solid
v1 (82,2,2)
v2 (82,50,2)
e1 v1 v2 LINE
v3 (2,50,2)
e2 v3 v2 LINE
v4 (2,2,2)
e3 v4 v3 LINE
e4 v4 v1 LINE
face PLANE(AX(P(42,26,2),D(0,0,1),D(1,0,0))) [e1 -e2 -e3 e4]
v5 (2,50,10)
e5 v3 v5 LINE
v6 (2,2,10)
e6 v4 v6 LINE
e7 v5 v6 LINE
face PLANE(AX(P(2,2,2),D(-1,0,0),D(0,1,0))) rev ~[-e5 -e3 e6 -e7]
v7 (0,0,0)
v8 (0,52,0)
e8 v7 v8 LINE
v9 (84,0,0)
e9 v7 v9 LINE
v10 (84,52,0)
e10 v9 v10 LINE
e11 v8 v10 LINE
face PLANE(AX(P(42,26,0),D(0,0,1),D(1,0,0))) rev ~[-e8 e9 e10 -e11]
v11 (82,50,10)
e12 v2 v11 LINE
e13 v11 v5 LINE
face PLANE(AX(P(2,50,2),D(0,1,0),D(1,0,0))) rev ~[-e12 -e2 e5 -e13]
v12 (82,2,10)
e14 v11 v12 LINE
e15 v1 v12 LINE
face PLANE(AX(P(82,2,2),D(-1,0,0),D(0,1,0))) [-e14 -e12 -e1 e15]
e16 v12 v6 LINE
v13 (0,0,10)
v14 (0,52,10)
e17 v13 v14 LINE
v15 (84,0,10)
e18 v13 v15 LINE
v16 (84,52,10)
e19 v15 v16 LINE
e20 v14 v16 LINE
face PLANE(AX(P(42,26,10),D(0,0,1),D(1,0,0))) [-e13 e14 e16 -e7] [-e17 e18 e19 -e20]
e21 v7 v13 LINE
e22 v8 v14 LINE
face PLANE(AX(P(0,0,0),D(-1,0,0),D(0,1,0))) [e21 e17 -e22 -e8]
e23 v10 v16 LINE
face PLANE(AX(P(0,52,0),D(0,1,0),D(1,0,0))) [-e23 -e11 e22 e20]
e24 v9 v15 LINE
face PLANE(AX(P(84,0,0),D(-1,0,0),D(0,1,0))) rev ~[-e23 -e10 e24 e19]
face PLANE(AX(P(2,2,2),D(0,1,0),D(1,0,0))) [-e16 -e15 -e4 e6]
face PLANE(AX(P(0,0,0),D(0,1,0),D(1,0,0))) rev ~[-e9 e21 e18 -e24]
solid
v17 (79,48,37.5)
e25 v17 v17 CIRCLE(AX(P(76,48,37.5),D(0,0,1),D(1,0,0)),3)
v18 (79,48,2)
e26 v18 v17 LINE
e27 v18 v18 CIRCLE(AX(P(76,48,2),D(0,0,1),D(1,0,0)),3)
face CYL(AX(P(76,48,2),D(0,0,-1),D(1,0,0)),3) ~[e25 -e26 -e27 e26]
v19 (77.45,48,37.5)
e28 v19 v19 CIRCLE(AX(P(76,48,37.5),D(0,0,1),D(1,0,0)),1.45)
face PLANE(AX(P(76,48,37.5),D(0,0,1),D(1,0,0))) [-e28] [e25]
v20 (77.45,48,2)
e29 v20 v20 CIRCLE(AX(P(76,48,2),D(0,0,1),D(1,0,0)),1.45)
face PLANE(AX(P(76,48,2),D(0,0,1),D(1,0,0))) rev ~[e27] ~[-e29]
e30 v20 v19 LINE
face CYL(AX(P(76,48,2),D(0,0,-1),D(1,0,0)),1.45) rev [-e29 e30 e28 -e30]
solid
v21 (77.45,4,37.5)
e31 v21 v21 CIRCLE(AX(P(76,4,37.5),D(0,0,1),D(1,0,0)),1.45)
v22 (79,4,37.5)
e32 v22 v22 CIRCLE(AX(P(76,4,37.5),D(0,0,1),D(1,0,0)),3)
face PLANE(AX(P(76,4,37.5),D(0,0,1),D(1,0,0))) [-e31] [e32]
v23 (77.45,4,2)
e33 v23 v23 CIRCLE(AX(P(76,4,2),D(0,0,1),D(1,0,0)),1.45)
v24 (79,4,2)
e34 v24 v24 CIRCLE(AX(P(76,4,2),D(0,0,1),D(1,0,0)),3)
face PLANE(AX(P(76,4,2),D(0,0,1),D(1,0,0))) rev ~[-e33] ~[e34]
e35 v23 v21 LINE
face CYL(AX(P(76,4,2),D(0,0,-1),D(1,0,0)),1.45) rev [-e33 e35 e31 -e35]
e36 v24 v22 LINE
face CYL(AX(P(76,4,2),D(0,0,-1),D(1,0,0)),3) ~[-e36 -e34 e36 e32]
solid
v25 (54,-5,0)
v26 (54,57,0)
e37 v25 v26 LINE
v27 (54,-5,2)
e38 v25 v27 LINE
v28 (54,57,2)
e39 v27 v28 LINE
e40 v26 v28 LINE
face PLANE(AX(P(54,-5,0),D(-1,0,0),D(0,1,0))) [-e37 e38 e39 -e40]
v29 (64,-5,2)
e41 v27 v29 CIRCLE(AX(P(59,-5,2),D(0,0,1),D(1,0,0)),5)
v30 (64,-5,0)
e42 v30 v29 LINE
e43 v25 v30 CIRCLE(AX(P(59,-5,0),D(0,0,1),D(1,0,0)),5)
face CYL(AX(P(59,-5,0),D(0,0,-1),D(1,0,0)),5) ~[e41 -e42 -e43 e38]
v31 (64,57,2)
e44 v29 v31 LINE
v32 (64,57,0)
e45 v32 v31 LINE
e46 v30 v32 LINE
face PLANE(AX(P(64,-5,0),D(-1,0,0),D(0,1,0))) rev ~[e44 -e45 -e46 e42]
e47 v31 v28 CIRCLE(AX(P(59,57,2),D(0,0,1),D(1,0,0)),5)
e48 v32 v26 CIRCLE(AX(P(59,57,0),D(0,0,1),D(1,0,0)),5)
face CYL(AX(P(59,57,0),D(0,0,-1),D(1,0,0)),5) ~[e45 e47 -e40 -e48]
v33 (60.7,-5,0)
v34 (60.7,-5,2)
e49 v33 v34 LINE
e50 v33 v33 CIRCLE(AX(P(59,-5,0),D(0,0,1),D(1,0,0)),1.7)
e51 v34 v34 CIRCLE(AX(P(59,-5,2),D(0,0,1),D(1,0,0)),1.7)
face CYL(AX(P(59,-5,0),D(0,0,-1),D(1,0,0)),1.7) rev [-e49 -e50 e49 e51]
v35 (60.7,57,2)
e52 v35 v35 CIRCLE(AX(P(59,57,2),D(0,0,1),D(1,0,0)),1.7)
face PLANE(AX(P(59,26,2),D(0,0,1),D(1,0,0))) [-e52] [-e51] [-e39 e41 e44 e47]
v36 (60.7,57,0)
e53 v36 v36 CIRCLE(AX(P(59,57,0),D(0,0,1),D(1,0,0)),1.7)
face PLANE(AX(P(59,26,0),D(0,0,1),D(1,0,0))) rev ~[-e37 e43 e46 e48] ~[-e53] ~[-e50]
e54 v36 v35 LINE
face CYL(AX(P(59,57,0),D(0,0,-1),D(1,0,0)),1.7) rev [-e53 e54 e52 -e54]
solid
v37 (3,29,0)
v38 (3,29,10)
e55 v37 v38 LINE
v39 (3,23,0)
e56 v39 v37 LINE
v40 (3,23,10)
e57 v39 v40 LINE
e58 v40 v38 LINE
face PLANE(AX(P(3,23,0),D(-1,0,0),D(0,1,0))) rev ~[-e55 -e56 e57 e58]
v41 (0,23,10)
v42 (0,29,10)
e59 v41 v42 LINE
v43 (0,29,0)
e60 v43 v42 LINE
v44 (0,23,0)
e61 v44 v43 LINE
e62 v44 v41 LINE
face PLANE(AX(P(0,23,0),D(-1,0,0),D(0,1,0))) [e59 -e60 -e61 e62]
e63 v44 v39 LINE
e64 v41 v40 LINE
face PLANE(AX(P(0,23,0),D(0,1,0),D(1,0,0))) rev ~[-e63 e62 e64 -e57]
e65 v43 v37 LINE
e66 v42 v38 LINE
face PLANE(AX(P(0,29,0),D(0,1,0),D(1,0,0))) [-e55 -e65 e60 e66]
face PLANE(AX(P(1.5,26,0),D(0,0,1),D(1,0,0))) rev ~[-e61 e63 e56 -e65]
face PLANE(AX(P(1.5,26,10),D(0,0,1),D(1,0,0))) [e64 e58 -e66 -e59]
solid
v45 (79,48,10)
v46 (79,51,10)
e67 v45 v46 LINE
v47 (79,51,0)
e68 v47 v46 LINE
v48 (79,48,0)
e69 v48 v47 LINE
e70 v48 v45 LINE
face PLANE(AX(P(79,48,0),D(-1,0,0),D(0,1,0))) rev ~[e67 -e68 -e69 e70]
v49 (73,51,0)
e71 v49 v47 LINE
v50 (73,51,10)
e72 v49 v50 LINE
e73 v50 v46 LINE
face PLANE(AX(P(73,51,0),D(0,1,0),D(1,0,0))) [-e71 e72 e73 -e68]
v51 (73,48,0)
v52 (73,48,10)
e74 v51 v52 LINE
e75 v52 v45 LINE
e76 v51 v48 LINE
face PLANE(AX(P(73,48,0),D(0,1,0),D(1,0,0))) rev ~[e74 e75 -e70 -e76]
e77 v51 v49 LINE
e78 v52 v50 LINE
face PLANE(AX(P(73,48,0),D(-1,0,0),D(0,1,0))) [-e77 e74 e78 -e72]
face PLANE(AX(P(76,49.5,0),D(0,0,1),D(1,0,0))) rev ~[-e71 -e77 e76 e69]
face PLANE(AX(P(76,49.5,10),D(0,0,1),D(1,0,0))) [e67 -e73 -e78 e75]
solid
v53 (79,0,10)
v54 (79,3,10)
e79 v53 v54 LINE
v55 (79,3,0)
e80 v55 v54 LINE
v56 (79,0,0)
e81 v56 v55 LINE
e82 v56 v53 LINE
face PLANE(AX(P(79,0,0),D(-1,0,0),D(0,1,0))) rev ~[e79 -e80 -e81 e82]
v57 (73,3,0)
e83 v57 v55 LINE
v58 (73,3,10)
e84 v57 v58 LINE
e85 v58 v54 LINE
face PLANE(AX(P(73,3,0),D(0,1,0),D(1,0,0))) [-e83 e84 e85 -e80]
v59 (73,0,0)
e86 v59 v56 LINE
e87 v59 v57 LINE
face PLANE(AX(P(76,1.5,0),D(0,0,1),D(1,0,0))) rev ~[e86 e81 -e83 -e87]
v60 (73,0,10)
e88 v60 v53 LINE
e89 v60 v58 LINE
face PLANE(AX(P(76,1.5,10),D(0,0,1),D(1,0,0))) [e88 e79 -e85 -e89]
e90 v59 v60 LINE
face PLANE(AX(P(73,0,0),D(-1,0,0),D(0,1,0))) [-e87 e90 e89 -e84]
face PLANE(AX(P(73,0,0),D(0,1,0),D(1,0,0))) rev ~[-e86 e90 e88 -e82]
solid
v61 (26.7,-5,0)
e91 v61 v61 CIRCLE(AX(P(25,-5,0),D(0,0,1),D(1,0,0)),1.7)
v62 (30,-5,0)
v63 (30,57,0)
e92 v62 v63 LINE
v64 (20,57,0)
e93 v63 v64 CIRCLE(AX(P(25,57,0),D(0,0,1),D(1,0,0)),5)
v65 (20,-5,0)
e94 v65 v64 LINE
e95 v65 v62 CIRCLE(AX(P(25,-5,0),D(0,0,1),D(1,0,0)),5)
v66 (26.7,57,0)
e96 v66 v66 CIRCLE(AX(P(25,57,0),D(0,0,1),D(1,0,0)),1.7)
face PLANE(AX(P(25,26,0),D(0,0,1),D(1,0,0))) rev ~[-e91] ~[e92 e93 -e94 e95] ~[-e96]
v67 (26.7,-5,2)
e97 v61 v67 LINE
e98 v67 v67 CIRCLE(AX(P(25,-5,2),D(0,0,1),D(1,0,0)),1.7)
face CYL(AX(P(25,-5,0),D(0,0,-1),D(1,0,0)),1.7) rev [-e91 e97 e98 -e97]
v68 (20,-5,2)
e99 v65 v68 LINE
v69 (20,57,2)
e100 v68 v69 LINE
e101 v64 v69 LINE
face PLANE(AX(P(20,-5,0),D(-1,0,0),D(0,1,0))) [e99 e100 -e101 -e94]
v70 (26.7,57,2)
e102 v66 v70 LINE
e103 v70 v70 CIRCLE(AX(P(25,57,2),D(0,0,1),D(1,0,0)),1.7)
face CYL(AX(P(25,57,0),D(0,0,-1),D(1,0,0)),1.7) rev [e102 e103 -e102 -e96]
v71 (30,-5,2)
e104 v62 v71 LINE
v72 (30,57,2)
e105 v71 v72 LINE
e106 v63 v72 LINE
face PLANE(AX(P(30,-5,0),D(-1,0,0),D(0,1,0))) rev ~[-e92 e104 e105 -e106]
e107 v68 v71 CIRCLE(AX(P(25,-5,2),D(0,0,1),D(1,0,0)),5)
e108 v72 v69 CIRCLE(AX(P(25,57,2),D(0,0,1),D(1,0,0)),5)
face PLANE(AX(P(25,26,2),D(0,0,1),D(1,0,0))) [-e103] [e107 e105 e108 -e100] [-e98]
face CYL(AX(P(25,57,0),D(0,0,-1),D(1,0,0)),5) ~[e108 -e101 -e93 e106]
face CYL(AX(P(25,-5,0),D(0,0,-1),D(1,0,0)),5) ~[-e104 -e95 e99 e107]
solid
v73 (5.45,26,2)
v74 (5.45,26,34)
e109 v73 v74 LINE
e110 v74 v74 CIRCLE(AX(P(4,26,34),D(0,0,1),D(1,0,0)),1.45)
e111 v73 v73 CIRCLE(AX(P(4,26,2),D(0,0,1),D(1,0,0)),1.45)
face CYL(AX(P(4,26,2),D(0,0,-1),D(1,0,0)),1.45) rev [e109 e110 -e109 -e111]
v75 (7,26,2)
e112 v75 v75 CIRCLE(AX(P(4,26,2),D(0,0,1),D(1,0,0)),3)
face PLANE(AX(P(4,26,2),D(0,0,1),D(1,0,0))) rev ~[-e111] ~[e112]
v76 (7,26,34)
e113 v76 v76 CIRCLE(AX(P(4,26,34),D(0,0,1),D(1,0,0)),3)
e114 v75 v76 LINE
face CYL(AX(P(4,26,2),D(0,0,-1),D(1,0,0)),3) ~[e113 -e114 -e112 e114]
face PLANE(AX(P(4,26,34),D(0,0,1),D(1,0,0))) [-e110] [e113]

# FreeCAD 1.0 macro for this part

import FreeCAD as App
import Part
import Sketcher
Q = App.Units.Quantity

doc = App.newDocument("Part")
params = doc.addObject("Spreadsheet::Sheet", "Params")
for row, (alias, value) in enumerate([
    ("sketch1_diameter", "2.9 mm"),
    ("pad1_length", "32 mm"),
    ("sketch2_diameter", "6 mm"),
    ("pad2_length", "32 mm"),
    ("sketch3_diameter", "2.9 mm"),
    ("pad3_length", "35.5 mm"),
    ("sketch4_diameter", "6 mm"),
    ("pad4_length", "35.5 mm"),
    ("sketch5_diameter", "2.9 mm"),
    ("pad5_length", "35.5 mm"),
    ("sketch6_diameter", "6 mm"),
    ("pad6_length", "35.5 mm"),
    ("sketch7_width", "80 mm"),
    ("sketch7_height", "48 mm"),
    ("pad7_length", "10 mm"),
    ("sketch8_width", "84 mm"),
    ("sketch8_height", "52 mm"),
    ("pad8_length", "10 mm"),
    ("sketch9_width", "3 mm"),
    ("sketch9_height", "6 mm"),
    ("pad9_length", "10 mm"),
    ("sketch10_width", "6 mm"),
    ("sketch10_height", "3 mm"),
    ("pad10_length", "10 mm"),
    ("sketch11_width", "6 mm"),
    ("sketch11_height", "3 mm"),
    ("pad11_length", "10 mm"),
    ("sketch12_diameter", "3.4 mm"),
    ("pad12_length", "2 mm"),
    ("sketch13_diameter", "3.4 mm"),
    ("pad13_length", "2 mm"),
    ("sketch14_width", "10 mm"),
    ("sketch14_height", "62 mm"),
    ("pad14_length", "2 mm"),
    ("sketch15_diameter", "10 mm"),
    ("pad15_length", "2 mm"),
    ("sketch16_diameter", "10 mm"),
    ("pad16_length", "2 mm"),
    ("sketch17_diameter", "3.4 mm"),
    ("pad17_length", "2 mm"),
    ("sketch18_diameter", "3.4 mm"),
    ("pad18_length", "2 mm"),
    ("sketch19_width", "10 mm"),
    ("sketch19_height", "62 mm"),
    ("pad19_length", "2 mm"),
    ("sketch20_diameter", "10 mm"),
    ("pad20_length", "2 mm"),
    ("sketch21_diameter", "10 mm"),
    ("pad21_length", "2 mm"),
], start=1):
    params.set(f"A{row}", alias)
    params.set(f"B{row}", "=" + value)
    params.setAlias(f"B{row}", alias)

body = doc.addObject("PartDesign::Body", "Body")

# Sketch on XY plane
sketch1 = doc.addObject("Sketcher::SketchObject", "Sketch")
body.addObject(sketch1)
sketch1.AttachmentSupport = (doc.XY_Plane, [""])
sketch1.MapMode = "FlatFace"
sketch1.AttachmentOffset = App.Placement(App.Vector(0, 0, 2), App.Rotation())
sketch1.addGeometry(Part.Circle(App.Vector(4, 26, 0), App.Vector(0, 0, 1), 1.4), False)
sketch1.addConstraint(Sketcher.Constraint("Diameter", 0, Q("2.9 mm")))
sketch1.addConstraint(Sketcher.Constraint("DistanceX", -1, 1, 0, 3, Q("4 mm")))
sketch1.addConstraint(Sketcher.Constraint("DistanceY", -1, 1, 0, 3, Q("26 mm")))
sketch1.setExpression("Constraints[0]", "Params.sketch1_diameter")
pad1 = doc.addObject("PartDesign::Pad", "Pad")
body.addObject(pad1)
pad1.Profile = sketch1
pad1.setExpression("Length", "Params.pad1_length")
body2 = doc.addObject("PartDesign::Body", "Body001")

# Sketch on XY plane
sketch2 = doc.addObject("Sketcher::SketchObject", "Sketch001")
body2.addObject(sketch2)
sketch2.AttachmentSupport = (doc.getObject("XY_Plane001"), [""])
sketch2.MapMode = "FlatFace"
sketch2.AttachmentOffset = App.Placement(App.Vector(0, 0, 2), App.Rotation())
sketch2.addGeometry(Part.Circle(App.Vector(4, 26, 0), App.Vector(0, 0, 1), 3), False)
sketch2.addConstraint(Sketcher.Constraint("Diameter", 0, Q("6 mm")))
sketch2.addConstraint(Sketcher.Constraint("DistanceX", -1, 1, 0, 3, Q("4 mm")))
sketch2.addConstraint(Sketcher.Constraint("DistanceY", -1, 1, 0, 3, Q("26 mm")))
sketch2.setExpression("Constraints[0]", "Params.sketch2_diameter")
pad2 = doc.addObject("PartDesign::Pad", "Pad001")
body2.addObject(pad2)
pad2.Profile = sketch2
pad2.setExpression("Length", "Params.pad2_length")
doc.recompute()

boolean = doc.addObject("PartDesign::Boolean", "Boolean")
body2.addObject(boolean)
boolean.Type = "Cut"
boolean.addObjects([body])
body3 = doc.addObject("PartDesign::Body", "Body002")

# Sketch on XY plane
sketch3 = doc.addObject("Sketcher::SketchObject", "Sketch002")
body3.addObject(sketch3)
sketch3.AttachmentSupport = (doc.getObject("XY_Plane002"), [""])
sketch3.MapMode = "FlatFace"
sketch3.AttachmentOffset = App.Placement(App.Vector(0, 0, 2), App.Rotation())
sketch3.addGeometry(Part.Circle(App.Vector(76, 4, 0), App.Vector(0, 0, 1), 1.4), False)
sketch3.addConstraint(Sketcher.Constraint("Diameter", 0, Q("2.9 mm")))
sketch3.addConstraint(Sketcher.Constraint("DistanceX", -1, 1, 0, 3, Q("76 mm")))
sketch3.addConstraint(Sketcher.Constraint("DistanceY", -1, 1, 0, 3, Q("4 mm")))
sketch3.setExpression("Constraints[0]", "Params.sketch3_diameter")
pad3 = doc.addObject("PartDesign::Pad", "Pad002")
body3.addObject(pad3)
pad3.Profile = sketch3
pad3.setExpression("Length", "Params.pad3_length")
body4 = doc.addObject("PartDesign::Body", "Body003")

# Sketch on XY plane
sketch4 = doc.addObject("Sketcher::SketchObject", "Sketch003")
body4.addObject(sketch4)
sketch4.AttachmentSupport = (doc.getObject("XY_Plane003"), [""])
sketch4.MapMode = "FlatFace"
sketch4.AttachmentOffset = App.Placement(App.Vector(0, 0, 2), App.Rotation())
sketch4.addGeometry(Part.Circle(App.Vector(76, 4, 0), App.Vector(0, 0, 1), 3), False)
sketch4.addConstraint(Sketcher.Constraint("Diameter", 0, Q("6 mm")))
sketch4.addConstraint(Sketcher.Constraint("DistanceX", -1, 1, 0, 3, Q("76 mm")))
sketch4.addConstraint(Sketcher.Constraint("DistanceY", -1, 1, 0, 3, Q("4 mm")))
sketch4.setExpression("Constraints[0]", "Params.sketch4_diameter")
pad4 = doc.addObject("PartDesign::Pad", "Pad003")
body4.addObject(pad4)
pad4.Profile = sketch4
pad4.setExpression("Length", "Params.pad4_length")
doc.recompute()

boolean2 = doc.addObject("PartDesign::Boolean", "Boolean001")
body4.addObject(boolean2)
boolean2.Type = "Cut"
boolean2.addObjects([body3])
body5 = doc.addObject("PartDesign::Body", "Body004")

# Sketch on XY plane
sketch5 = doc.addObject("Sketcher::SketchObject", "Sketch004")
body5.addObject(sketch5)
sketch5.AttachmentSupport = (doc.getObject("XY_Plane004"), [""])
sketch5.MapMode = "FlatFace"
sketch5.AttachmentOffset = App.Placement(App.Vector(0, 0, 2), App.Rotation())
sketch5.addGeometry(Part.Circle(App.Vector(76, 48, 0), App.Vector(0, 0, 1), 1.4), False)
sketch5.addConstraint(Sketcher.Constraint("Diameter", 0, Q("2.9 mm")))
sketch5.addConstraint(Sketcher.Constraint("DistanceX", -1, 1, 0, 3, Q("76 mm")))
sketch5.addConstraint(Sketcher.Constraint("DistanceY", -1, 1, 0, 3, Q("48 mm")))
sketch5.setExpression("Constraints[0]", "Params.sketch5_diameter")
pad5 = doc.addObject("PartDesign::Pad", "Pad004")
body5.addObject(pad5)
pad5.Profile = sketch5
pad5.setExpression("Length", "Params.pad5_length")
body6 = doc.addObject("PartDesign::Body", "Body005")

# Sketch on XY plane
sketch6 = doc.addObject("Sketcher::SketchObject", "Sketch005")
body6.addObject(sketch6)
sketch6.AttachmentSupport = (doc.getObject("XY_Plane005"), [""])
sketch6.MapMode = "FlatFace"
sketch6.AttachmentOffset = App.Placement(App.Vector(0, 0, 2), App.Rotation())
sketch6.addGeometry(Part.Circle(App.Vector(76, 48, 0), App.Vector(0, 0, 1), 3), False)
sketch6.addConstraint(Sketcher.Constraint("Diameter", 0, Q("6 mm")))
sketch6.addConstraint(Sketcher.Constraint("DistanceX", -1, 1, 0, 3, Q("76 mm")))
sketch6.addConstraint(Sketcher.Constraint("DistanceY", -1, 1, 0, 3, Q("48 mm")))
sketch6.setExpression("Constraints[0]", "Params.sketch6_diameter")
pad6 = doc.addObject("PartDesign::Pad", "Pad005")
body6.addObject(pad6)
pad6.Profile = sketch6
pad6.setExpression("Length", "Params.pad6_length")
doc.recompute()

boolean3 = doc.addObject("PartDesign::Boolean", "Boolean002")
body6.addObject(boolean3)
boolean3.Type = "Cut"
boolean3.addObjects([body5])
body7 = doc.addObject("PartDesign::Body", "Body006")

# Sketch on XY plane
sketch7 = doc.addObject("Sketcher::SketchObject", "Sketch006")
body7.addObject(sketch7)
sketch7.AttachmentSupport = (doc.getObject("XY_Plane006"), [""])
sketch7.MapMode = "FlatFace"
sketch7.AttachmentOffset = App.Placement(App.Vector(0, 0, 2), App.Rotation())
sketch7.addGeometry(Part.LineSegment(App.Vector(2, 50, 0), App.Vector(2, 2, 0)), False)
sketch7.addGeometry(Part.LineSegment(App.Vector(2, 2, 0), App.Vector(82, 2, 0)), False)
sketch7.addGeometry(Part.LineSegment(App.Vector(82, 2, 0), App.Vector(82, 50, 0)), False)
sketch7.addGeometry(Part.LineSegment(App.Vector(82, 50, 0), App.Vector(2, 50, 0)), False)
sketch7.addConstraint(Sketcher.Constraint("Coincident", 0, 2, 1, 1))
sketch7.addConstraint(Sketcher.Constraint("Coincident", 1, 2, 2, 1))
sketch7.addConstraint(Sketcher.Constraint("Coincident", 2, 2, 3, 1))
sketch7.addConstraint(Sketcher.Constraint("Coincident", 3, 2, 0, 1))
sketch7.addConstraint(Sketcher.Constraint("Vertical", 0))
sketch7.addConstraint(Sketcher.Constraint("Horizontal", 1))
sketch7.addConstraint(Sketcher.Constraint("Vertical", 2))
sketch7.addConstraint(Sketcher.Constraint("Horizontal", 3))
sketch7.addConstraint(Sketcher.Constraint("DistanceX", 1, 1, 1, 2, Q("80 mm")))
sketch7.addConstraint(Sketcher.Constraint("DistanceY", 0, 2, 0, 1, Q("48 mm")))
sketch7.addConstraint(Sketcher.Constraint("DistanceX", -1, 1, 0, 2, Q("2 mm")))
sketch7.addConstraint(Sketcher.Constraint("DistanceY", -1, 1, 0, 2, Q("2 mm")))
sketch7.setExpression("Constraints[8]", "Params.sketch7_width")
sketch7.setExpression("Constraints[9]", "Params.sketch7_height")
pad7 = doc.addObject("PartDesign::Pad", "Pad006")
body7.addObject(pad7)
pad7.Profile = sketch7
pad7.setExpression("Length", "Params.pad7_length")
body8 = doc.addObject("PartDesign::Body", "Body007")

# Sketch on XY plane
sketch8 = doc.addObject("Sketcher::SketchObject", "Sketch007")
body8.addObject(sketch8)
sketch8.AttachmentSupport = (doc.getObject("XY_Plane007"), [""])
sketch8.MapMode = "FlatFace"
sketch8.addGeometry(Part.LineSegment(App.Vector(0, 52, 0), App.Vector(0, 0, 0)), False)
sketch8.addGeometry(Part.LineSegment(App.Vector(0, 0, 0), App.Vector(84, 0, 0)), False)
sketch8.addGeometry(Part.LineSegment(App.Vector(84, 0, 0), App.Vector(84, 52, 0)), False)
sketch8.addGeometry(Part.LineSegment(App.Vector(84, 52, 0), App.Vector(0, 52, 0)), False)
sketch8.addConstraint(Sketcher.Constraint("Coincident", 0, 2, 1, 1))
sketch8.addConstraint(Sketcher.Constraint("Coincident", 1, 2, 2, 1))
sketch8.addConstraint(Sketcher.Constraint("Coincident", 2, 2, 3, 1))
sketch8.addConstraint(Sketcher.Constraint("Coincident", 3, 2, 0, 1))
sketch8.addConstraint(Sketcher.Constraint("Vertical", 0))
sketch8.addConstraint(Sketcher.Constraint("Horizontal", 1))
sketch8.addConstraint(Sketcher.Constraint("Vertical", 2))
sketch8.addConstraint(Sketcher.Constraint("Horizontal", 3))
sketch8.addConstraint(Sketcher.Constraint("Coincident", 0, 2, -1, 1))
sketch8.addConstraint(Sketcher.Constraint("DistanceX", 1, 1, 1, 2, Q("84 mm")))
sketch8.addConstraint(Sketcher.Constraint("DistanceY", 0, 2, 0, 1, Q("52 mm")))
sketch8.setExpression("Constraints[9]", "Params.sketch8_width")
sketch8.setExpression("Constraints[10]", "Params.sketch8_height")
pad8 = doc.addObject("PartDesign::Pad", "Pad007")
body8.addObject(pad8)
pad8.Profile = sketch8
pad8.setExpression("Length", "Params.pad8_length")
doc.recompute()

boolean4 = doc.addObject("PartDesign::Boolean", "Boolean003")
body8.addObject(boolean4)
boolean4.Type = "Cut"
boolean4.addObjects([body7])
body9 = doc.addObject("PartDesign::Body", "Body008")

# Sketch on XY plane
sketch9 = doc.addObject("Sketcher::SketchObject", "Sketch008")
body9.addObject(sketch9)
sketch9.AttachmentSupport = (doc.getObject("XY_Plane008"), [""])
sketch9.MapMode = "FlatFace"
sketch9.addGeometry(Part.LineSegment(App.Vector(0, 29, 0), App.Vector(0, 23, 0)), False)
sketch9.addGeometry(Part.LineSegment(App.Vector(0, 23, 0), App.Vector(3, 23, 0)), False)
sketch9.addGeometry(Part.LineSegment(App.Vector(3, 23, 0), App.Vector(3, 29, 0)), False)
sketch9.addGeometry(Part.LineSegment(App.Vector(3, 29, 0), App.Vector(0, 29, 0)), False)
sketch9.addConstraint(Sketcher.Constraint("Coincident", 0, 2, 1, 1))
sketch9.addConstraint(Sketcher.Constraint("Coincident", 1, 2, 2, 1))
sketch9.addConstraint(Sketcher.Constraint("Coincident", 2, 2, 3, 1))
sketch9.addConstraint(Sketcher.Constraint("Coincident", 3, 2, 0, 1))
sketch9.addConstraint(Sketcher.Constraint("Vertical", 0))
sketch9.addConstraint(Sketcher.Constraint("Horizontal", 1))
sketch9.addConstraint(Sketcher.Constraint("Vertical", 2))
sketch9.addConstraint(Sketcher.Constraint("Horizontal", 3))
sketch9.addConstraint(Sketcher.Constraint("PointOnObject", 0, 2, -2))
sketch9.addConstraint(Sketcher.Constraint("DistanceX", 1, 1, 1, 2, Q("3 mm")))
sketch9.addConstraint(Sketcher.Constraint("DistanceY", 0, 2, 0, 1, Q("6 mm")))
sketch9.addConstraint(Sketcher.Constraint("DistanceY", -1, 1, 0, 2, Q("23 mm")))
sketch9.setExpression("Constraints[9]", "Params.sketch9_width")
sketch9.setExpression("Constraints[10]", "Params.sketch9_height")
pad9 = doc.addObject("PartDesign::Pad", "Pad008")
body9.addObject(pad9)
pad9.Profile = sketch9
pad9.setExpression("Length", "Params.pad9_length")
body10 = doc.addObject("PartDesign::Body", "Body009")

# Sketch on XY plane
sketch10 = doc.addObject("Sketcher::SketchObject", "Sketch009")
body10.addObject(sketch10)
sketch10.AttachmentSupport = (doc.getObject("XY_Plane009"), [""])
sketch10.MapMode = "FlatFace"
sketch10.addGeometry(Part.LineSegment(App.Vector(73, 3, 0), App.Vector(73, 0, 0)), False)
sketch10.addGeometry(Part.LineSegment(App.Vector(73, 0, 0), App.Vector(79, 0, 0)), False)
sketch10.addGeometry(Part.LineSegment(App.Vector(79, 0, 0), App.Vector(79, 3, 0)), False)
sketch10.addGeometry(Part.LineSegment(App.Vector(79, 3, 0), App.Vector(73, 3, 0)), False)
sketch10.addConstraint(Sketcher.Constraint("Coincident", 0, 2, 1, 1))
sketch10.addConstraint(Sketcher.Constraint("Coincident", 1, 2, 2, 1))
sketch10.addConstraint(Sketcher.Constraint("Coincident", 2, 2, 3, 1))
sketch10.addConstraint(Sketcher.Constraint("Coincident", 3, 2, 0, 1))
sketch10.addConstraint(Sketcher.Constraint("Vertical", 0))
sketch10.addConstraint(Sketcher.Constraint("Horizontal", 1))
sketch10.addConstraint(Sketcher.Constraint("Vertical", 2))
sketch10.addConstraint(Sketcher.Constraint("Horizontal", 3))
sketch10.addConstraint(Sketcher.Constraint("PointOnObject", 0, 2, -1))
sketch10.addConstraint(Sketcher.Constraint("DistanceX", 1, 1, 1, 2, Q("6 mm")))
sketch10.addConstraint(Sketcher.Constraint("DistanceY", 0, 2, 0, 1, Q("3 mm")))
sketch10.addConstraint(Sketcher.Constraint("DistanceX", -1, 1, 0, 2, Q("73 mm")))
sketch10.setExpression("Constraints[9]", "Params.sketch10_width")
sketch10.setExpression("Constraints[10]", "Params.sketch10_height")
pad10 = doc.addObject("PartDesign::Pad", "Pad009")
body10.addObject(pad10)
pad10.Profile = sketch10
pad10.setExpression("Length", "Params.pad10_length")
body11 = doc.addObject("PartDesign::Body", "Body010")

# Sketch on XY plane
sketch11 = doc.addObject("Sketcher::SketchObject", "Sketch010")
body11.addObject(sketch11)
sketch11.AttachmentSupport = (doc.getObject("XY_Plane010"), [""])
sketch11.MapMode = "FlatFace"
sketch11.addGeometry(Part.LineSegment(App.Vector(73, 51, 0), App.Vector(73, 48, 0)), False)
sketch11.addGeometry(Part.LineSegment(App.Vector(73, 48, 0), App.Vector(79, 48, 0)), False)
sketch11.addGeometry(Part.LineSegment(App.Vector(79, 48, 0), App.Vector(79, 51, 0)), False)
sketch11.addGeometry(Part.LineSegment(App.Vector(79, 51, 0), App.Vector(73, 51, 0)), False)
sketch11.addConstraint(Sketcher.Constraint("Coincident", 0, 2, 1, 1))
sketch11.addConstraint(Sketcher.Constraint("Coincident", 1, 2, 2, 1))
sketch11.addConstraint(Sketcher.Constraint("Coincident", 2, 2, 3, 1))
sketch11.addConstraint(Sketcher.Constraint("Coincident", 3, 2, 0, 1))
sketch11.addConstraint(Sketcher.Constraint("Vertical", 0))
sketch11.addConstraint(Sketcher.Constraint("Horizontal", 1))
sketch11.addConstraint(Sketcher.Constraint("Vertical", 2))
sketch11.addConstraint(Sketcher.Constraint("Horizontal", 3))
sketch11.addConstraint(Sketcher.Constraint("DistanceX", 1, 1, 1, 2, Q("6 mm")))
sketch11.addConstraint(Sketcher.Constraint("DistanceY", 0, 2, 0, 1, Q("3 mm")))
sketch11.addConstraint(Sketcher.Constraint("DistanceX", -1, 1, 0, 2, Q("73 mm")))
sketch11.addConstraint(Sketcher.Constraint("DistanceY", -1, 1, 0, 2, Q("48 mm")))
sketch11.setExpression("Constraints[8]", "Params.sketch11_width")
sketch11.setExpression("Constraints[9]", "Params.sketch11_height")
pad11 = doc.addObject("PartDesign::Pad", "Pad010")
body11.addObject(pad11)
pad11.Profile = sketch11
pad11.setExpression("Length", "Params.pad11_length")
body12 = doc.addObject("PartDesign::Body", "Body011")

# Sketch on XY plane
sketch12 = doc.addObject("Sketcher::SketchObject", "Sketch011")
body12.addObject(sketch12)
sketch12.AttachmentSupport = (doc.getObject("XY_Plane011"), [""])
sketch12.MapMode = "FlatFace"
sketch12.addGeometry(Part.Circle(App.Vector(25, 57, 0), App.Vector(0, 0, 1), 1.7), False)
sketch12.addConstraint(Sketcher.Constraint("Diameter", 0, Q("3.4 mm")))
sketch12.addConstraint(Sketcher.Constraint("DistanceX", -1, 1, 0, 3, Q("25 mm")))
sketch12.addConstraint(Sketcher.Constraint("DistanceY", -1, 1, 0, 3, Q("57 mm")))
sketch12.setExpression("Constraints[0]", "Params.sketch12_diameter")
pad12 = doc.addObject("PartDesign::Pad", "Pad011")
body12.addObject(pad12)
pad12.Profile = sketch12
pad12.setExpression("Length", "Params.pad12_length")
body13 = doc.addObject("PartDesign::Body", "Body012")
body13.AllowCompound = True

# Sketch on XY plane
sketch13 = doc.addObject("Sketcher::SketchObject", "Sketch012")
body13.addObject(sketch13)
sketch13.AttachmentSupport = (doc.getObject("XY_Plane012"), [""])
sketch13.MapMode = "FlatFace"
sketch13.addGeometry(Part.Circle(App.Vector(25, -5, 0), App.Vector(0, 0, 1), 1.7), False)
sketch13.addConstraint(Sketcher.Constraint("Diameter", 0, Q("3.4 mm")))
sketch13.addConstraint(Sketcher.Constraint("DistanceX", -1, 1, 0, 3, Q("25 mm")))
sketch13.addConstraint(Sketcher.Constraint("DistanceY", 0, 3, -1, 1, Q("5 mm")))
sketch13.setExpression("Constraints[0]", "Params.sketch13_diameter")
pad13 = doc.addObject("PartDesign::Pad", "Pad012")
body13.addObject(pad13)
pad13.Profile = sketch13
pad13.setExpression("Length", "Params.pad13_length")
doc.recompute()

boolean5 = doc.addObject("PartDesign::Boolean", "Boolean004")
body13.addObject(boolean5)
boolean5.Type = "Fuse"
boolean5.addObjects([body12])
body14 = doc.addObject("PartDesign::Body", "Body013")

# Sketch on XY plane
sketch14 = doc.addObject("Sketcher::SketchObject", "Sketch013")
body14.addObject(sketch14)
sketch14.AttachmentSupport = (doc.getObject("XY_Plane013"), [""])
sketch14.MapMode = "FlatFace"
sketch14.addGeometry(Part.LineSegment(App.Vector(20, 57, 0), App.Vector(20, -5, 0)), False)
sketch14.addGeometry(Part.LineSegment(App.Vector(20, -5, 0), App.Vector(30, -5, 0)), False)
sketch14.addGeometry(Part.LineSegment(App.Vector(30, -5, 0), App.Vector(30, 57, 0)), False)
sketch14.addGeometry(Part.LineSegment(App.Vector(30, 57, 0), App.Vector(20, 57, 0)), False)
sketch14.addConstraint(Sketcher.Constraint("Coincident", 0, 2, 1, 1))
sketch14.addConstraint(Sketcher.Constraint("Coincident", 1, 2, 2, 1))
sketch14.addConstraint(Sketcher.Constraint("Coincident", 2, 2, 3, 1))
sketch14.addConstraint(Sketcher.Constraint("Coincident", 3, 2, 0, 1))
sketch14.addConstraint(Sketcher.Constraint("Vertical", 0))
sketch14.addConstraint(Sketcher.Constraint("Horizontal", 1))
sketch14.addConstraint(Sketcher.Constraint("Vertical", 2))
sketch14.addConstraint(Sketcher.Constraint("Horizontal", 3))
sketch14.addConstraint(Sketcher.Constraint("DistanceX", 1, 1, 1, 2, Q("10 mm")))
sketch14.addConstraint(Sketcher.Constraint("DistanceY", 0, 2, 0, 1, Q("62 mm")))
sketch14.addConstraint(Sketcher.Constraint("DistanceX", -1, 1, 0, 2, Q("20 mm")))
sketch14.addConstraint(Sketcher.Constraint("DistanceY", 0, 2, -1, 1, Q("5 mm")))
sketch14.setExpression("Constraints[8]", "Params.sketch14_width")
sketch14.setExpression("Constraints[9]", "Params.sketch14_height")
pad14 = doc.addObject("PartDesign::Pad", "Pad013")
body14.addObject(pad14)
pad14.Profile = sketch14
pad14.setExpression("Length", "Params.pad14_length")
body15 = doc.addObject("PartDesign::Body", "Body014")

# Sketch on XY plane
sketch15 = doc.addObject("Sketcher::SketchObject", "Sketch014")
body15.addObject(sketch15)
sketch15.AttachmentSupport = (doc.getObject("XY_Plane014"), [""])
sketch15.MapMode = "FlatFace"
sketch15.addGeometry(Part.Circle(App.Vector(25, -5, 0), App.Vector(0, 0, 1), 5), False)
sketch15.addConstraint(Sketcher.Constraint("Diameter", 0, Q("10 mm")))
sketch15.addConstraint(Sketcher.Constraint("DistanceX", -1, 1, 0, 3, Q("25 mm")))
sketch15.addConstraint(Sketcher.Constraint("DistanceY", 0, 3, -1, 1, Q("5 mm")))
sketch15.setExpression("Constraints[0]", "Params.sketch15_diameter")
pad15 = doc.addObject("PartDesign::Pad", "Pad014")
body15.addObject(pad15)
pad15.Profile = sketch15
pad15.setExpression("Length", "Params.pad15_length")
body16 = doc.addObject("PartDesign::Body", "Body015")

# Sketch on XY plane
sketch16 = doc.addObject("Sketcher::SketchObject", "Sketch015")
body16.addObject(sketch16)
sketch16.AttachmentSupport = (doc.getObject("XY_Plane015"), [""])
sketch16.MapMode = "FlatFace"
sketch16.addGeometry(Part.Circle(App.Vector(25, 57, 0), App.Vector(0, 0, 1), 5), False)
sketch16.addConstraint(Sketcher.Constraint("Diameter", 0, Q("10 mm")))
sketch16.addConstraint(Sketcher.Constraint("DistanceX", -1, 1, 0, 3, Q("25 mm")))
sketch16.addConstraint(Sketcher.Constraint("DistanceY", -1, 1, 0, 3, Q("57 mm")))
sketch16.setExpression("Constraints[0]", "Params.sketch16_diameter")
pad16 = doc.addObject("PartDesign::Pad", "Pad015")
body16.addObject(pad16)
pad16.Profile = sketch16
pad16.setExpression("Length", "Params.pad16_length")
doc.recompute()

boolean6 = doc.addObject("PartDesign::Boolean", "Boolean005")
body16.addObject(boolean6)
boolean6.Type = "Fuse"
boolean6.addObjects([body14])
doc.recompute()

boolean7 = doc.addObject("PartDesign::Boolean", "Boolean006")
body16.addObject(boolean7)
boolean7.Type = "Fuse"
boolean7.addObjects([body15])
doc.recompute()

boolean8 = doc.addObject("PartDesign::Boolean", "Boolean007")
body16.addObject(boolean8)
boolean8.Type = "Cut"
boolean8.addObjects([body13])
body17 = doc.addObject("PartDesign::Body", "Body016")

# Sketch on XY plane
sketch17 = doc.addObject("Sketcher::SketchObject", "Sketch016")
body17.addObject(sketch17)
sketch17.AttachmentSupport = (doc.getObject("XY_Plane016"), [""])
sketch17.MapMode = "FlatFace"
sketch17.addGeometry(Part.Circle(App.Vector(25, 57, 0), App.Vector(0, 0, 1), 1.7), False)
sketch17.addConstraint(Sketcher.Constraint("Diameter", 0, Q("3.4 mm")))
sketch17.addConstraint(Sketcher.Constraint("DistanceX", -1, 1, 0, 3, Q("25 mm")))
sketch17.addConstraint(Sketcher.Constraint("DistanceY", -1, 1, 0, 3, Q("57 mm")))
sketch17.setExpression("Constraints[0]", "Params.sketch17_diameter")
pad17 = doc.addObject("PartDesign::Pad", "Pad016")
body17.addObject(pad17)
pad17.Profile = sketch17
pad17.setExpression("Length", "Params.pad17_length")
body18 = doc.addObject("PartDesign::Body", "Body017")
body18.AllowCompound = True

# Sketch on XY plane
sketch18 = doc.addObject("Sketcher::SketchObject", "Sketch017")
body18.addObject(sketch18)
sketch18.AttachmentSupport = (doc.getObject("XY_Plane017"), [""])
sketch18.MapMode = "FlatFace"
sketch18.addGeometry(Part.Circle(App.Vector(25, -5, 0), App.Vector(0, 0, 1), 1.7), False)
sketch18.addConstraint(Sketcher.Constraint("Diameter", 0, Q("3.4 mm")))
sketch18.addConstraint(Sketcher.Constraint("DistanceX", -1, 1, 0, 3, Q("25 mm")))
sketch18.addConstraint(Sketcher.Constraint("DistanceY", 0, 3, -1, 1, Q("5 mm")))
sketch18.setExpression("Constraints[0]", "Params.sketch18_diameter")
pad18 = doc.addObject("PartDesign::Pad", "Pad017")
body18.addObject(pad18)
pad18.Profile = sketch18
pad18.setExpression("Length", "Params.pad18_length")
doc.recompute()

boolean9 = doc.addObject("PartDesign::Boolean", "Boolean008")
body18.addObject(boolean9)
boolean9.Type = "Fuse"
boolean9.addObjects([body17])
body19 = doc.addObject("PartDesign::Body", "Body018")

# Sketch on XY plane
sketch19 = doc.addObject("Sketcher::SketchObject", "Sketch018")
body19.addObject(sketch19)
sketch19.AttachmentSupport = (doc.getObject("XY_Plane018"), [""])
sketch19.MapMode = "FlatFace"
sketch19.addGeometry(Part.LineSegment(App.Vector(20, 57, 0), App.Vector(20, -5, 0)), False)
sketch19.addGeometry(Part.LineSegment(App.Vector(20, -5, 0), App.Vector(30, -5, 0)), False)
sketch19.addGeometry(Part.LineSegment(App.Vector(30, -5, 0), App.Vector(30, 57, 0)), False)
sketch19.addGeometry(Part.LineSegment(App.Vector(30, 57, 0), App.Vector(20, 57, 0)), False)
sketch19.addConstraint(Sketcher.Constraint("Coincident", 0, 2, 1, 1))
sketch19.addConstraint(Sketcher.Constraint("Coincident", 1, 2, 2, 1))
sketch19.addConstraint(Sketcher.Constraint("Coincident", 2, 2, 3, 1))
sketch19.addConstraint(Sketcher.Constraint("Coincident", 3, 2, 0, 1))
sketch19.addConstraint(Sketcher.Constraint("Vertical", 0))
sketch19.addConstraint(Sketcher.Constraint("Horizontal", 1))
sketch19.addConstraint(Sketcher.Constraint("Vertical", 2))
sketch19.addConstraint(Sketcher.Constraint("Horizontal", 3))
sketch19.addConstraint(Sketcher.Constraint("DistanceX", 1, 1, 1, 2, Q("10 mm")))
sketch19.addConstraint(Sketcher.Constraint("DistanceY", 0, 2, 0, 1, Q("62 mm")))
sketch19.addConstraint(Sketcher.Constraint("DistanceX", -1, 1, 0, 2, Q("20 mm")))
sketch19.addConstraint(Sketcher.Constraint("DistanceY", 0, 2, -1, 1, Q("5 mm")))
sketch19.setExpression("Constraints[8]", "Params.sketch19_width")
sketch19.setExpression("Constraints[9]", "Params.sketch19_height")
pad19 = doc.addObject("PartDesign::Pad", "Pad018")
body19.addObject(pad19)
pad19.Profile = sketch19
pad19.setExpression("Length", "Params.pad19_length")
body20 = doc.addObject("PartDesign::Body", "Body019")

# Sketch on XY plane
sketch20 = doc.addObject("Sketcher::SketchObject", "Sketch019")
body20.addObject(sketch20)
sketch20.AttachmentSupport = (doc.getObject("XY_Plane019"), [""])
sketch20.MapMode = "FlatFace"
sketch20.addGeometry(Part.Circle(App.Vector(25, -5, 0), App.Vector(0, 0, 1), 5), False)
sketch20.addConstraint(Sketcher.Constraint("Diameter", 0, Q("10 mm")))
sketch20.addConstraint(Sketcher.Constraint("DistanceX", -1, 1, 0, 3, Q("25 mm")))
sketch20.addConstraint(Sketcher.Constraint("DistanceY", 0, 3, -1, 1, Q("5 mm")))
sketch20.setExpression("Constraints[0]", "Params.sketch20_diameter")
pad20 = doc.addObject("PartDesign::Pad", "Pad019")
body20.addObject(pad20)
pad20.Profile = sketch20
pad20.setExpression("Length", "Params.pad20_length")
body21 = doc.addObject("PartDesign::Body", "Body020")

# Sketch on XY plane
sketch21 = doc.addObject("Sketcher::SketchObject", "Sketch020")
body21.addObject(sketch21)
sketch21.AttachmentSupport = (doc.getObject("XY_Plane020"), [""])
sketch21.MapMode = "FlatFace"
sketch21.addGeometry(Part.Circle(App.Vector(25, 57, 0), App.Vector(0, 0, 1), 5), False)
sketch21.addConstraint(Sketcher.Constraint("Diameter", 0, Q("10 mm")))
sketch21.addConstraint(Sketcher.Constraint("DistanceX", -1, 1, 0, 3, Q("25 mm")))
sketch21.addConstraint(Sketcher.Constraint("DistanceY", -1, 1, 0, 3, Q("57 mm")))
sketch21.setExpression("Constraints[0]", "Params.sketch21_diameter")
pad21 = doc.addObject("PartDesign::Pad", "Pad020")
body21.addObject(pad21)
pad21.Profile = sketch21
pad21.setExpression("Length", "Params.pad21_length")
doc.recompute()

boolean10 = doc.addObject("PartDesign::Boolean", "Boolean009")
body21.addObject(boolean10)
boolean10.Type = "Fuse"
boolean10.addObjects([body19])
doc.recompute()

boolean11 = doc.addObject("PartDesign::Boolean", "Boolean010")
body21.addObject(boolean11)
boolean11.Type = "Fuse"
boolean11.addObjects([body20])
doc.recompute()

boolean12 = doc.addObject("PartDesign::Boolean", "Boolean011")
body21.addObject(boolean12)
boolean12.Type = "Cut"
boolean12.addObjects([body18])
body22 = doc.addObject("PartDesign::Body", "Body021")
doc.recompute()

body21.Placement = App.Placement(App.Vector(34, 0, 0), App.Rotation(App.Vector(0, 0, 1), 0))
boolean13 = doc.addObject("PartDesign::Boolean", "Boolean012")
body22.addObject(boolean13)
boolean13.Type = "Fuse"
boolean13.addObjects([body21])

doc.recompute()
